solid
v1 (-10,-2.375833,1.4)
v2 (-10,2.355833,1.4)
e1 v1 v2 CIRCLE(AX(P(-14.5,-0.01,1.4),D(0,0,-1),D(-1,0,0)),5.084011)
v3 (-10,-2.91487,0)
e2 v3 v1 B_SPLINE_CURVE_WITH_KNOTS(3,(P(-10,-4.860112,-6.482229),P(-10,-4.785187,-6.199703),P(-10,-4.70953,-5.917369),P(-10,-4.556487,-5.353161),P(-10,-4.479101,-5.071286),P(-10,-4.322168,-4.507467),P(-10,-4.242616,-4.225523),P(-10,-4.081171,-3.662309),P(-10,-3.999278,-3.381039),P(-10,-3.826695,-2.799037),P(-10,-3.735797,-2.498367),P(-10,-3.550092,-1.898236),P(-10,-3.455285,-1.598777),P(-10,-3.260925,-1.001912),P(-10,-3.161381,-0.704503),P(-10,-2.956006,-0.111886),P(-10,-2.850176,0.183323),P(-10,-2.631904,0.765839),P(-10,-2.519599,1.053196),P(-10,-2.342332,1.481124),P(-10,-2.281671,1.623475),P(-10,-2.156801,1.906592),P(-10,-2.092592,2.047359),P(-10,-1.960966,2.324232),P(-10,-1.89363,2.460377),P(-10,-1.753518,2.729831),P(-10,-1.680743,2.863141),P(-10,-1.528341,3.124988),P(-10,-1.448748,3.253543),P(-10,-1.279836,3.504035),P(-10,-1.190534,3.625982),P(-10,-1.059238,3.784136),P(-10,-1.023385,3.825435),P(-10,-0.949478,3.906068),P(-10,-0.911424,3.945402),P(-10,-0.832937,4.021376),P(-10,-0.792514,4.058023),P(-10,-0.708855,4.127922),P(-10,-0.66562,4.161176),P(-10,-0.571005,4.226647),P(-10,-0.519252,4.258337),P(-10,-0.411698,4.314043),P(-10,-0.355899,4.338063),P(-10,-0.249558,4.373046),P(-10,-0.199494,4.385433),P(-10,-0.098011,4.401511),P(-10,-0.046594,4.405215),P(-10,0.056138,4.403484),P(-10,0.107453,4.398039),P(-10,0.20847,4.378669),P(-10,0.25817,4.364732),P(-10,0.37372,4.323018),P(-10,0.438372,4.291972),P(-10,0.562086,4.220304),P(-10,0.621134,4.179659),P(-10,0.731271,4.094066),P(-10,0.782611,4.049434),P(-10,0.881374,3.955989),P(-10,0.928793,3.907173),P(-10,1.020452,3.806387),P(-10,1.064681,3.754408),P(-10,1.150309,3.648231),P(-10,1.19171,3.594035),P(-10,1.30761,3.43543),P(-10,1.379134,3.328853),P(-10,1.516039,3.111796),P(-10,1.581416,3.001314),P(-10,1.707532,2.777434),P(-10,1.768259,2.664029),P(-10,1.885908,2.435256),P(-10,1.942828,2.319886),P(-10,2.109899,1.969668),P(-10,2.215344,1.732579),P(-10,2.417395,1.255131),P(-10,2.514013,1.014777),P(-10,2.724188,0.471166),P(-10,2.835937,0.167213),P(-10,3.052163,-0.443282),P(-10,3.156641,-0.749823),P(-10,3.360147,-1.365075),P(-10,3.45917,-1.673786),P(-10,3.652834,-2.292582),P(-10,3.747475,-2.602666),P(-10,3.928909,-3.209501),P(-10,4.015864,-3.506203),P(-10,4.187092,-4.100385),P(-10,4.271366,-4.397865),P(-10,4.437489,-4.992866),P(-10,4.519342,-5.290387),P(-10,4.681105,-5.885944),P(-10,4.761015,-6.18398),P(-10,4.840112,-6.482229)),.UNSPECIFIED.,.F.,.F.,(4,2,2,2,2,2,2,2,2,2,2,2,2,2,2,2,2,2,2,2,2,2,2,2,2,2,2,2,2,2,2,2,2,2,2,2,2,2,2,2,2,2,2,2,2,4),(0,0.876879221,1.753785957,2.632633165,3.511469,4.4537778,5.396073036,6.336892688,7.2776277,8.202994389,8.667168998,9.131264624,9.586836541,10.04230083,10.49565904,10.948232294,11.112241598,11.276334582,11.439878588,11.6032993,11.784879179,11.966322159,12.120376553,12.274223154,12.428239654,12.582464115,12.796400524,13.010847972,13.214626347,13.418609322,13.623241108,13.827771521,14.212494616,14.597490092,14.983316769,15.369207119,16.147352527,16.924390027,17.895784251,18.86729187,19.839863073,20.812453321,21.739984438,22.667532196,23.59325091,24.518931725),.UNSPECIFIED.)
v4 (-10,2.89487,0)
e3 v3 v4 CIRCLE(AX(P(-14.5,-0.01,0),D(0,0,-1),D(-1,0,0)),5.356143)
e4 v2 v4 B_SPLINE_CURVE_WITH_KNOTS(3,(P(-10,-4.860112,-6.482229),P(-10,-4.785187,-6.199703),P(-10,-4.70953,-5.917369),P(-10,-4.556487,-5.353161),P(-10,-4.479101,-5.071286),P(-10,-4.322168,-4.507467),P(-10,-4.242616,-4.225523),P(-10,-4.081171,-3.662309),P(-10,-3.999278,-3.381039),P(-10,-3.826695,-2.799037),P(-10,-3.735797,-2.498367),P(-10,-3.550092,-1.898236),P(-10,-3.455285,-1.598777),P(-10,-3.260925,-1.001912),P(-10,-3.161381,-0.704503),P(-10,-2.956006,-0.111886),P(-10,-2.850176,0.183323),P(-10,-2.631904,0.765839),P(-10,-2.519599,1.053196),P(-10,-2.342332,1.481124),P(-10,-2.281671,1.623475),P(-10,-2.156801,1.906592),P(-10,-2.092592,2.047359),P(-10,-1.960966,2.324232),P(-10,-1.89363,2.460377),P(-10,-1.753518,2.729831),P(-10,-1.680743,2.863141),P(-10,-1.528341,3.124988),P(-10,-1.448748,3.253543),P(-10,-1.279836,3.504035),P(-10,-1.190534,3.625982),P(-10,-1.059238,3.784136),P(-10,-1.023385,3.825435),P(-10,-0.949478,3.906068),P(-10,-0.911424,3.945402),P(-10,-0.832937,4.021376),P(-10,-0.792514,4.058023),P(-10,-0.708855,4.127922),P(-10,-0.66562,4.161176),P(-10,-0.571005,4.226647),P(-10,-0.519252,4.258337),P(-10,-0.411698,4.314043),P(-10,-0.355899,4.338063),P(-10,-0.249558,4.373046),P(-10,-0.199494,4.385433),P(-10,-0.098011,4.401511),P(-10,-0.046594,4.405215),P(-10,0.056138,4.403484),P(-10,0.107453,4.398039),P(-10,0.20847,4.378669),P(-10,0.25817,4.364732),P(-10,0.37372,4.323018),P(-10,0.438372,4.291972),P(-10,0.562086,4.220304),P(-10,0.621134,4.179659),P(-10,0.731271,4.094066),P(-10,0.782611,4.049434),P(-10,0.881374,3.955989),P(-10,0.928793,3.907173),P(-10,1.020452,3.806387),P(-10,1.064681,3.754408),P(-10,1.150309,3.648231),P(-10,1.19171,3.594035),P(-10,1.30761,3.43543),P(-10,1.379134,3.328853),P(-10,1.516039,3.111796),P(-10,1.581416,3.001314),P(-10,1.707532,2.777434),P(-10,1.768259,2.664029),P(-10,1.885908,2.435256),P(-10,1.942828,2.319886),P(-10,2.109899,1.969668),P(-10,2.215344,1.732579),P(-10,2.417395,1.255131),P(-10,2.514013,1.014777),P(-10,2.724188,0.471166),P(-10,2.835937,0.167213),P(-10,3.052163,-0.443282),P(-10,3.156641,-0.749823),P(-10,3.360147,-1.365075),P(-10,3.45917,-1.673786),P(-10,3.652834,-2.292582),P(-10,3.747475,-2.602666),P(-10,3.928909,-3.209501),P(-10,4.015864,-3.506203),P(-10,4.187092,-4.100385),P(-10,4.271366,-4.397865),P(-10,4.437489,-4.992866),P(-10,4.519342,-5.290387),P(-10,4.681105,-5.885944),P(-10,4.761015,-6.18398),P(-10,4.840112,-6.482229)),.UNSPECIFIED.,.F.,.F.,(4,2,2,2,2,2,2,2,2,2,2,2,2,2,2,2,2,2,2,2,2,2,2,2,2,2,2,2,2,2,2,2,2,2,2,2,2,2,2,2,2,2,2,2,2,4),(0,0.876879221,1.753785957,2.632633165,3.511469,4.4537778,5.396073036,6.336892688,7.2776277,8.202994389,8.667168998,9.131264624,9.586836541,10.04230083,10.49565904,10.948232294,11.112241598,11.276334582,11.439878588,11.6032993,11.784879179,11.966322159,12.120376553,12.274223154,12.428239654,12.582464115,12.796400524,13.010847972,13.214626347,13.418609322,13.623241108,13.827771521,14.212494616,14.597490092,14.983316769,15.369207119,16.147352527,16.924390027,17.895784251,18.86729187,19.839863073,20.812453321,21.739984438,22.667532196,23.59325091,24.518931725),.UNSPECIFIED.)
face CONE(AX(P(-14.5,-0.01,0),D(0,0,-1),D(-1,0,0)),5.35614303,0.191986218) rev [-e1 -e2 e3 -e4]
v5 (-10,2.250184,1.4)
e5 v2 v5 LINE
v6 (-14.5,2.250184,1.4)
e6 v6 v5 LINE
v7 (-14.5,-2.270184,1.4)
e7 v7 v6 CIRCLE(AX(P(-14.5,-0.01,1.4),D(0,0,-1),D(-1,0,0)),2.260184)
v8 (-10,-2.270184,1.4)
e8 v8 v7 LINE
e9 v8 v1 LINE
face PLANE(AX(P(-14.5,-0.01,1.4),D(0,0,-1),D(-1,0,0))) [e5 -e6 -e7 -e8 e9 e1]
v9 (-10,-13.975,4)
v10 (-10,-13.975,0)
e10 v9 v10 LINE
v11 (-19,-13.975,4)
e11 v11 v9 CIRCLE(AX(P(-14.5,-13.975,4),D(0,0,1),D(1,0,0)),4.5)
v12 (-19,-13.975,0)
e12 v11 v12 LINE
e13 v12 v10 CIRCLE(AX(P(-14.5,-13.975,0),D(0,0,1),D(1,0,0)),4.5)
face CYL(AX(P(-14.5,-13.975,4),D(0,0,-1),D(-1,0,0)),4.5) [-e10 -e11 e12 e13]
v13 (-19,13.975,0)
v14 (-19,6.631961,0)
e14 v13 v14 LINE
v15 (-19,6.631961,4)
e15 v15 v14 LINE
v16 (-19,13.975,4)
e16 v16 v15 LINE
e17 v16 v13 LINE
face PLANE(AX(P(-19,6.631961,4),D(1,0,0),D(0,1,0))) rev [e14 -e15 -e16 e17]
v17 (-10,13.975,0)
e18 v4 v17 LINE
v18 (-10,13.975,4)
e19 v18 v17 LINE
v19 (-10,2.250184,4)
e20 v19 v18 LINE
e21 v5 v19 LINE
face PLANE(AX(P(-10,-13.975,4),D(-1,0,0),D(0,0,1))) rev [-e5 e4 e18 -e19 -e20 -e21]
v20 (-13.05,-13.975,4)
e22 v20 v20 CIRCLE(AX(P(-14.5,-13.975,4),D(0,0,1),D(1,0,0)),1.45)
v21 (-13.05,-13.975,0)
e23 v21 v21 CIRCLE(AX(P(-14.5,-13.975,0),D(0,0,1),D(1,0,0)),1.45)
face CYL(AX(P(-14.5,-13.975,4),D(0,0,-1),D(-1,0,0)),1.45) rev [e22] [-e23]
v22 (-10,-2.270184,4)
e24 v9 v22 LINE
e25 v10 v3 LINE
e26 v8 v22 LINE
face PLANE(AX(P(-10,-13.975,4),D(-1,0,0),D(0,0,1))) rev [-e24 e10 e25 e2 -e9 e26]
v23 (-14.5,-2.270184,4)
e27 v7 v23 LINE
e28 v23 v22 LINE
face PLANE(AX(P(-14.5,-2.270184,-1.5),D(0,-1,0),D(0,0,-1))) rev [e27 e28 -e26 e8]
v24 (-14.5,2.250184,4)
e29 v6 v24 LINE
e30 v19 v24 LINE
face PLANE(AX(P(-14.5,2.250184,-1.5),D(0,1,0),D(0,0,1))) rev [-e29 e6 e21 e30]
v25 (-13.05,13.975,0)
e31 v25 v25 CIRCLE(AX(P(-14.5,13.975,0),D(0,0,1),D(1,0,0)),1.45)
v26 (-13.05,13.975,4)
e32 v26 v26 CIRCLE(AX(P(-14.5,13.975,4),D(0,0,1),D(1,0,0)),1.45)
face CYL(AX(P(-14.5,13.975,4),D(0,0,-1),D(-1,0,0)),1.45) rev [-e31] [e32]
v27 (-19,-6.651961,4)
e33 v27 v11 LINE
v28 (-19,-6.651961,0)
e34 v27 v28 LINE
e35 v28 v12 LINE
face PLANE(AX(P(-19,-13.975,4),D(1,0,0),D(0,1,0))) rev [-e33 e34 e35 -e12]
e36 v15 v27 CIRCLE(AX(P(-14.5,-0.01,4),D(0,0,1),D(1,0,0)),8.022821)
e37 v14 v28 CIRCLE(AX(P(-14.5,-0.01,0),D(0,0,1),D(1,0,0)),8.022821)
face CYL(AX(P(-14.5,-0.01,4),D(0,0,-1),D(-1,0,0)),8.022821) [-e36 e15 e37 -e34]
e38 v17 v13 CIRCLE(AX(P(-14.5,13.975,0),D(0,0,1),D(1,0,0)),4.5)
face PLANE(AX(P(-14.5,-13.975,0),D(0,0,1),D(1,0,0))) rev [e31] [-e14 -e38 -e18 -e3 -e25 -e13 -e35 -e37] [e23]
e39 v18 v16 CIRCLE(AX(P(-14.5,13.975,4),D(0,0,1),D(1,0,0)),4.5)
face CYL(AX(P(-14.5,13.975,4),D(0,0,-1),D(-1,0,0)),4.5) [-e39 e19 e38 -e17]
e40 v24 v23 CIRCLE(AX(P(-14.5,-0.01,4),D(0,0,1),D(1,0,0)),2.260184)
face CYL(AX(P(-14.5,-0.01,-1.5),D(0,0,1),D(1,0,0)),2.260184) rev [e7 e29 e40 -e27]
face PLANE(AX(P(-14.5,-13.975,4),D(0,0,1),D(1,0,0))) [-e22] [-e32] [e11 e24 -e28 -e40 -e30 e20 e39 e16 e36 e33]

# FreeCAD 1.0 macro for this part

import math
import FreeCAD as App
import Part
import Sketcher

V = App.Vector

doc = App.newDocument("Part")
body = doc.addObject("PartDesign::Body", "Body")

# Sketch on XY plane
sketch1 = doc.addObject("Sketcher::SketchObject", "Sketch")
body.addObject(sketch1)
sketch1.AttachmentSupport = (doc.XY_Plane, [""])
sketch1.MapMode = "FlatFace"
sketch1.addGeometry(Part.LineSegment(V(-19, 14, 0), V(-19, 6.6, 0)), False)
sketch1.addGeometry(Part.ArcOfCircle(Part.Circle(V(-14.5, 0, 0), V(0, 0, 1), 8), math.radians(124), math.radians(236)), False)
sketch1.addGeometry(Part.LineSegment(V(-19, -6.7, 0), V(-19, -14, 0)), False)
sketch1.addGeometry(Part.ArcOfCircle(Part.Circle(V(-14.5, -14, 0), V(0, 0, 1), 4.5), math.radians(180), math.radians(360)), False)
sketch1.addGeometry(Part.LineSegment(V(-10, -14, 0), V(-10, 14, 0)), False)
sketch1.addGeometry(Part.ArcOfCircle(Part.Circle(V(-14.5, 14, 0), V(0, 0, 1), 4.5), math.radians(0), math.radians(180)), False)
sketch1.addGeometry(Part.Circle(V(-14.5, -14, 0), V(0, 0, 1), 1.4), False)
sketch1.addGeometry(Part.Circle(V(-14.5, 14, 0), V(0, 0, 1), 1.4), False)
sketch1.addConstraint(Sketcher.Constraint("Coincident", 0, 2, 1, 1))
sketch1.addConstraint(Sketcher.Constraint("Coincident", 1, 2, 2, 1))
sketch1.addConstraint(Sketcher.Constraint("Tangent", 2, 2, 3, 1))
sketch1.addConstraint(Sketcher.Constraint("Tangent", 3, 2, 4, 1))
sketch1.addConstraint(Sketcher.Constraint("Tangent", 4, 2, 5, 1))
sketch1.addConstraint(Sketcher.Constraint("Tangent", 5, 2, 0, 1))
sketch1.addConstraint(Sketcher.Constraint("Vertical", 0))
sketch1.addConstraint(Sketcher.Constraint("Vertical", 2))
sketch1.addConstraint(Sketcher.Constraint("Vertical", 4))
sketch1.addConstraint(Sketcher.Constraint("Coincident", 6, 3, 3, 3))
sketch1.addConstraint(Sketcher.Constraint("Coincident", 7, 3, 5, 3))
sketch1.addConstraint(Sketcher.Constraint("Equal", 3, 5))
sketch1.addConstraint(Sketcher.Constraint("Equal", 6, 7))
sketch1.addConstraint(Sketcher.Constraint("Vertical", 1, 3, 3, 3))
sketch1.addConstraint(Sketcher.Constraint("Diameter", 6, 2.9))
sketch1.addConstraint(Sketcher.Constraint("Radius", 3, 4.5))
sketch1.addConstraint(Sketcher.Constraint("DistanceX", 0, 2, -1, 1, 19.0))
sketch1.addConstraint(Sketcher.Constraint("DistanceY", 4, 1, 4, 2, 27.95))
sketch1.addConstraint(Sketcher.Constraint("DistanceY", 1, 3, -1, 1, 0.01))
sketch1.addConstraint(Sketcher.Constraint("Radius", 1, 8.022821))
sketch1.addConstraint(Sketcher.Constraint("DistanceY", 3, 3, -1, 1, 13.975))
pad1 = doc.addObject("PartDesign::Pad", "Pad")
body.addObject(pad1)
pad1.Profile = sketch1
pad1.Length = 4

# Sketch on XY plane
sketch2 = doc.addObject("Sketcher::SketchObject", "Sketch001")
body.addObject(sketch2)
sketch2.AttachmentSupport = (doc.XY_Plane, [""])
sketch2.MapMode = "FlatFace"
sketch2.addGeometry(Part.Circle(V(-14, 0, 0), V(0, 0, 1), 5), False)
sketch2.addConstraint(Sketcher.Constraint("DistanceX", 0, 3, -1, 1, 14.5))
sketch2.addConstraint(Sketcher.Constraint("DistanceY", 0, 3, -1, 1, 0.01))
sketch2.addConstraint(Sketcher.Constraint("Diameter", 0, 10.712286))
pocket1 = doc.addObject("PartDesign::Pocket", "Pocket")
body.addObject(pocket1)
pocket1.Profile = sketch2
pocket1.Length = 1.4
pocket1.Reversed = True
pocket1.TaperAngle = -11

# Sketch on XY plane
sketch3 = doc.addObject("Sketcher::SketchObject", "Sketch002")
body.addObject(sketch3)
sketch3.AttachmentSupport = (doc.XY_Plane, [""])
sketch3.MapMode = "FlatFace"
sketch3.AttachmentOffset = App.Placement(V(0, 0, 4), App.Rotation())
sketch3.addGeometry(Part.LineSegment(V(-14.5, -2.3, 0), V(-10, -2.3, 0)), False)
sketch3.addGeometry(Part.LineSegment(V(-10, -2.3, 0), V(-10, 2.3, 0)), False)
sketch3.addGeometry(Part.LineSegment(V(-10, 2.3, 0), V(-14.5, 2.3, 0)), False)
sketch3.addGeometry(Part.ArcOfCircle(Part.Circle(V(-14.5, 0, 0), V(0, 0, 1), 2.3), math.radians(90), math.radians(270)), False)
sketch3.addConstraint(Sketcher.Constraint("Coincident", 0, 2, 1, 1))
sketch3.addConstraint(Sketcher.Constraint("Coincident", 1, 2, 2, 1))
sketch3.addConstraint(Sketcher.Constraint("Tangent", 2, 2, 3, 1))
sketch3.addConstraint(Sketcher.Constraint("Tangent", 3, 2, 0, 1))
sketch3.addConstraint(Sketcher.Constraint("Horizontal", 0))
sketch3.addConstraint(Sketcher.Constraint("Vertical", 1))
sketch3.addConstraint(Sketcher.Constraint("Horizontal", 2))
sketch3.addConstraint(Sketcher.Constraint("DistanceX", 0, 1, 0, 2, 4.5))
sketch3.addConstraint(Sketcher.Constraint("DistanceX", 0, 2, -1, 1, 10.0))
sketch3.addConstraint(Sketcher.Constraint("DistanceY", 3, 3, -1, 1, 0.01))
sketch3.addConstraint(Sketcher.Constraint("Radius", 3, 2.260184))
pocket2 = doc.addObject("PartDesign::Pocket", "Pocket001")
body.addObject(pocket2)
pocket2.Profile = sketch3
pocket2.Length = 5.5

doc.recompute()
